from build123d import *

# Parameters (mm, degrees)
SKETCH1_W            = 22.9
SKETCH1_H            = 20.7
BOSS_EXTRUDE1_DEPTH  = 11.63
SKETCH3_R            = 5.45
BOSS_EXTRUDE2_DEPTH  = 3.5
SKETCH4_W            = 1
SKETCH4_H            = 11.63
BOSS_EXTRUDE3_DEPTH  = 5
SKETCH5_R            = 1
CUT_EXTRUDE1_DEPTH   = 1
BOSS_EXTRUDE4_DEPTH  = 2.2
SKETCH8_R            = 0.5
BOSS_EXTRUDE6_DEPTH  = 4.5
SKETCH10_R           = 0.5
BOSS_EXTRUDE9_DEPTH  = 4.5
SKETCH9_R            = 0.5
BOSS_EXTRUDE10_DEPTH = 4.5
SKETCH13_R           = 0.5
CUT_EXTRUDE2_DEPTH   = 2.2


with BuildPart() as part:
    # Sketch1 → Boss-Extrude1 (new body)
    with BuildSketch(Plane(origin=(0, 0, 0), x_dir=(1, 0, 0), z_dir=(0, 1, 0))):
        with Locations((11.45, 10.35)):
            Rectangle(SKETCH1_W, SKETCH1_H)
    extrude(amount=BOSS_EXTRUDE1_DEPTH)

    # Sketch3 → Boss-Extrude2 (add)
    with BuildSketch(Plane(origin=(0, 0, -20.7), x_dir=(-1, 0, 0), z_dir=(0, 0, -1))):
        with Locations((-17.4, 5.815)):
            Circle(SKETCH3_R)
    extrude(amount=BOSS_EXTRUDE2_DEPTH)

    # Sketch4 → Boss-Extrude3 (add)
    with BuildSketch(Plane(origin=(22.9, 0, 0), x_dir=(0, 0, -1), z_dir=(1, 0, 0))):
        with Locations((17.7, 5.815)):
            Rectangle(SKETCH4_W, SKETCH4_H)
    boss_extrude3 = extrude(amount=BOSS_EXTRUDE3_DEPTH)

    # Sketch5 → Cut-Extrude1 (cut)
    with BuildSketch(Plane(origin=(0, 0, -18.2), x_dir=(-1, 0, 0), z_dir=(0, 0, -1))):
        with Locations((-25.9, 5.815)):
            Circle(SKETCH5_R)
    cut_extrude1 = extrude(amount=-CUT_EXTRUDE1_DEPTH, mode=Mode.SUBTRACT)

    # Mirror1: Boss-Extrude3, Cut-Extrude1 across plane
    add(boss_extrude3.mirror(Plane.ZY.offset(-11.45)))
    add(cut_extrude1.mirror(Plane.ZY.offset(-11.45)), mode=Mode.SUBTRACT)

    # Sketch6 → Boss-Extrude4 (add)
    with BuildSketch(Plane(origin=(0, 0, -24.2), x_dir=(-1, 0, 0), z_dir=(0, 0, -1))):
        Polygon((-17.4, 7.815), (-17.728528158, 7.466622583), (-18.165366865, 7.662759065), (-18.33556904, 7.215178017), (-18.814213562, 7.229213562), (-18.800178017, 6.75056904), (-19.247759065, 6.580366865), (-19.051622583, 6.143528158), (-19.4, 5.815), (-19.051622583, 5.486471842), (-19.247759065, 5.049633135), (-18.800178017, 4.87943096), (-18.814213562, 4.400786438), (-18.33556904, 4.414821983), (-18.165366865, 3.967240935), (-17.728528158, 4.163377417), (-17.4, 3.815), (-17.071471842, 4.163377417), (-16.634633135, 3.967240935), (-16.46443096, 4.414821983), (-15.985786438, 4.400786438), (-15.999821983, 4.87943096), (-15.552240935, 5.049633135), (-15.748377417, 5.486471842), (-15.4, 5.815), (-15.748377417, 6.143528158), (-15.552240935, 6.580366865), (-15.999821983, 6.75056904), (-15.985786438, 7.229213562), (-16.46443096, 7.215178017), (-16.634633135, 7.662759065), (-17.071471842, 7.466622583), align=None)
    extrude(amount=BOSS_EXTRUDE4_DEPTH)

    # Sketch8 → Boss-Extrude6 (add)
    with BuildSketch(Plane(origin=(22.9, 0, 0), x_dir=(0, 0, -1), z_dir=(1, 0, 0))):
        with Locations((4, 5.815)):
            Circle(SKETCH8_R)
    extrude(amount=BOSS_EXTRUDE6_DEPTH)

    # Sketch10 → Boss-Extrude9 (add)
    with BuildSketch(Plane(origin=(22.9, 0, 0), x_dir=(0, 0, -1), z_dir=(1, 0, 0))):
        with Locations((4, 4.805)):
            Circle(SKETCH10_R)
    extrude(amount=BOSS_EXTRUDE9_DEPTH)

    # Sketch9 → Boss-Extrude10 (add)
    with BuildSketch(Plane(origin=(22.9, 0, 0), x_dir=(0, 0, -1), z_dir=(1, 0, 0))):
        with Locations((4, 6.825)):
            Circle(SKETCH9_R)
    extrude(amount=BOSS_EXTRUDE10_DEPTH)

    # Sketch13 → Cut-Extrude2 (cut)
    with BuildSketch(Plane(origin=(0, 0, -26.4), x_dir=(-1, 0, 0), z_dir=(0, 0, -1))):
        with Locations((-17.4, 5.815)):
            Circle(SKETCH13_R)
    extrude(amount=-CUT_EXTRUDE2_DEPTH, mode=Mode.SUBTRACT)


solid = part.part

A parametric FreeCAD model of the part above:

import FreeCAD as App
import Part
import Sketcher


def add_polygon(sketch, points):
    """Adds a closed chain of lines whose ends are joined by coincident constraints."""
    first, n = sketch.GeometryCount, len(points)
    for a, b in zip(points, points[1:] + points[:1]):
        sketch.addGeometry(Part.LineSegment(App.Vector(*a, 0), App.Vector(*b, 0)), False)
    for i in range(n):
        sketch.addConstraint(Sketcher.Constraint("Coincident", first + i, 2, first + (i + 1) % n, 1))

doc = App.newDocument("Part")
body = doc.addObject("PartDesign::Body", "Body")

sketch1 = body.newObject("Sketcher::SketchObject", "Sketch")
sketch1.AttachmentSupport = (doc.getObject("XZ_Plane"), [""])
sketch1.MapMode = "FlatFace"
add_polygon(sketch1, [(0, -21), (0, 0), (23, 0), (23, -21)])
sketch1.addConstraint([
    Sketcher.Constraint("Vertical", 0),
    Sketcher.Constraint("Horizontal", 1),
    Sketcher.Constraint("Vertical", 2),
    Sketcher.Constraint("Horizontal", 3),
    Sketcher.Constraint("Coincident", 0, 2, -1, 1),
    Sketcher.Constraint("DistanceX", 1, 1, 1, 2, 22.9),
    Sketcher.Constraint("DistanceY", 0, 1, 0, 2, 20.7),
])
pad1 = body.newObject("PartDesign::Pad", "Pad")
pad1.Profile = sketch1
pad1.Length = 11.63
pad1.Reversed = True

sketch2 = body.newObject("Sketcher::SketchObject", "Sketch001")
sketch2.AttachmentSupport = (doc.getObject("XY_Plane"), [""])
sketch2.MapMode = "FlatFace"
sketch2.AttachmentOffset = App.Placement(App.Vector(0, 0, -20.7), App.Rotation())
sketch2.addGeometry(Part.Circle(App.Vector(17, 6, 0), App.Vector(0, 0, 1), 5), False)
sketch2.addConstraint([
    Sketcher.Constraint("Diameter", 0, 10.9),
    Sketcher.Constraint("DistanceX", -1, 1, 0, 3, 17.4),
    Sketcher.Constraint("DistanceY", -1, 1, 0, 3, 5.815),
])
pad2 = body.newObject("PartDesign::Pad", "Pad001")
pad2.Profile = sketch2
pad2.Length = 3.5
pad2.Reversed = True

sketch3 = body.newObject("Sketcher::SketchObject", "Sketch002")
sketch3.AttachmentSupport = (doc.getObject("YZ_Plane"), [""])
sketch3.MapMode = "FlatFace"
sketch3.AttachmentOffset = App.Placement(App.Vector(0, 0, 22.9), App.Rotation())
add_polygon(sketch3, [(11.6, -17.2), (0, -17.2), (0, -18.2), (11.6, -18.2)])
sketch3.addConstraint([
    Sketcher.Constraint("Horizontal", 0),
    Sketcher.Constraint("Vertical", 1),
    Sketcher.Constraint("Horizontal", 2),
    Sketcher.Constraint("Vertical", 3),
    Sketcher.Constraint("PointOnObject", 0, 2, -2),
    Sketcher.Constraint("DistanceY", 1, 2, 1, 1, 1.0),
    Sketcher.Constraint("DistanceX", 0, 2, 0, 1, 11.63),
    Sketcher.Constraint("DistanceY", 0, 2, -1, 1, 17.2),
])
pad3 = body.newObject("PartDesign::Pad", "Pad002")
pad3.Profile = sketch3
pad3.Length = 5

sketch4 = body.newObject("Sketcher::SketchObject", "Sketch003")
sketch4.AttachmentSupport = (doc.getObject("XY_Plane"), [""])
sketch4.MapMode = "FlatFace"
sketch4.AttachmentOffset = App.Placement(App.Vector(0, 0, -18.2), App.Rotation())
sketch4.addGeometry(Part.Circle(App.Vector(25.9, 5.8, 0), App.Vector(0, 0, 1), 1), False)
sketch4.addConstraint([
    Sketcher.Constraint("Diameter", 0, 2.0),
    Sketcher.Constraint("DistanceX", -1, 1, 0, 3, 25.9),
    Sketcher.Constraint("DistanceY", -1, 1, 0, 3, 5.815),
])
pocket1 = body.newObject("PartDesign::Pocket", "Pocket")
pocket1.Profile = sketch4
pocket1.Length = 1
pocket1.Reversed = True
doc.recompute()

datumplane = body.newObject("PartDesign::Plane", "DatumPlane")
datumplane.AttachmentSupport = (doc.getObject("YZ_Plane"), [""])
datumplane.MapMode = "FlatFace"
datumplane.AttachmentOffset = App.Placement(App.Vector(0, 0, 11.45), App.Rotation())
mirrored = body.newObject("PartDesign::Mirrored", "Mirrored")
mirrored.Originals = [pad3, pocket1]
mirrored.MirrorPlane = (datumplane, [""])
body.Tip = mirrored

sketch5 = body.newObject("Sketcher::SketchObject", "Sketch004")
sketch5.AttachmentSupport = (doc.getObject("XY_Plane"), [""])
sketch5.MapMode = "FlatFace"
sketch5.AttachmentOffset = App.Placement(App.Vector(0, 0, -24.2), App.Rotation())
add_polygon(sketch5, [(17.4, 7.82), (17.73, 7.47), (18.17, 7.66), (18.34, 7.22), (18.81, 7.23), (18.8, 6.75), (19.25, 6.58), (19.05, 6.14), (19.4, 5.82), (19.05, 5.49), (19.25, 5.05), (18.8, 4.88), (18.81, 4.4), (18.34, 4.41), (18.17, 3.97), (17.73, 4.16), (17.4, 3.81), (17.07, 4.16), (16.63, 3.97), (16.46, 4.41), (15.99, 4.4), (16, 4.88), (15.55, 5.05), (15.75, 5.49), (15.4, 5.82), (15.75, 6.14), (15.55, 6.58), (16, 6.75), (15.99, 7.23), (16.46, 7.22), (16.63, 7.66), (17.07, 7.47)])
sketch5.addConstraint([
    Sketcher.Constraint("Perpendicular", 0, 8),
    Sketcher.Constraint("Perpendicular", 1, 9),
    Sketcher.Constraint("Perpendicular", 2, 10),
    Sketcher.Constraint("Perpendicular", 3, 11),
    Sketcher.Constraint("Perpendicular", 4, 12),
    Sketcher.Constraint("Perpendicular", 5, 13),
    Sketcher.Constraint("Perpendicular", 6, 14),
    Sketcher.Constraint("Perpendicular", 7, 15),
    Sketcher.Constraint("Perpendicular", 8, 16),
    Sketcher.Constraint("Perpendicular", 9, 17),
    Sketcher.Constraint("Perpendicular", 10, 18),
    Sketcher.Constraint("Perpendicular", 11, 19),
    Sketcher.Constraint("Perpendicular", 12, 20),
    Sketcher.Constraint("Perpendicular", 13, 21),
    Sketcher.Constraint("Perpendicular", 14, 22),
    Sketcher.Constraint("Perpendicular", 15, 23),
    Sketcher.Constraint("Perpendicular", 16, 24),
    Sketcher.Constraint("Perpendicular", 17, 25),
    Sketcher.Constraint("Perpendicular", 18, 26),
    Sketcher.Constraint("Perpendicular", 19, 27),
    Sketcher.Constraint("Perpendicular", 20, 28),
    Sketcher.Constraint("Perpendicular", 21, 29),
    Sketcher.Constraint("Perpendicular", 22, 30),
    Sketcher.Constraint("Perpendicular", 23, 31),
    Sketcher.Constraint("Horizontal", 14, 2, 16, 2),
    Sketcher.Constraint("Horizontal", 13, 2, 17, 2),
    Sketcher.Constraint("Horizontal", 12, 2, 18, 2),
    Sketcher.Constraint("Horizontal", 11, 2, 19, 2),
    Sketcher.Constraint("Horizontal", 10, 2, 20, 2),
    Sketcher.Constraint("Horizontal", 9, 2, 21, 2),
    Sketcher.Constraint("Horizontal", 8, 2, 22, 2),
    Sketcher.Constraint("Horizontal", 7, 2, 23, 2),
    Sketcher.Constraint("Horizontal", 6, 2, 24, 2),
    Sketcher.Constraint("Horizontal", 5, 2, 25, 2),
    Sketcher.Constraint("Horizontal", 4, 2, 26, 2),
    Sketcher.Constraint("Horizontal", 3, 2, 27, 2),
    Sketcher.Constraint("Horizontal", 2, 2, 28, 2),
    Sketcher.Constraint("Horizontal", 1, 2, 29, 2),
    Sketcher.Constraint("Horizontal", 0, 2, 30, 2),
    Sketcher.Constraint("Vertical", 6, 2, 8, 2),
    Sketcher.Constraint("Vertical", 5, 2, 9, 2),
    Sketcher.Constraint("Vertical", 4, 2, 10, 2),
    Sketcher.Constraint("Vertical", 3, 2, 11, 2),
    Sketcher.Constraint("Vertical", 2, 2, 12, 2),
    Sketcher.Constraint("Vertical", 1, 2, 13, 2),
    Sketcher.Constraint("Vertical", 0, 2, 14, 2),
    Sketcher.Constraint("Vertical", 22, 2, 24, 2),
    Sketcher.Constraint("Vertical", 21, 2, 25, 2),
    Sketcher.Constraint("Vertical", 20, 2, 26, 2),
    Sketcher.Constraint("Vertical", 19, 2, 27, 2),
    Sketcher.Constraint("Equal", 0, 1),
    Sketcher.Constraint("Equal", 1, 2),
    Sketcher.Constraint("Equal", 2, 3),
    Sketcher.Constraint("Equal", 3, 4),
    Sketcher.Constraint("Equal", 4, 5),
    Sketcher.Constraint("Equal", 5, 6),
    Sketcher.Constraint("Equal", 6, 7),
    Sketcher.Constraint("DistanceX", -1, 1, 7, 2, 19.4),
    Sketcher.Constraint("DistanceX", -1, 1, 15, 2, 17.4),
    Sketcher.Constraint("DistanceY", -1, 1, 7, 2, 5.815),
    Sketcher.Constraint("Distance", 0, 0.47885),
    Sketcher.Constraint("DistanceX", -1, 1, 0, 2, 17.728528),
    Sketcher.Constraint("DistanceY", -1, 1, 1, 2, 7.662759),
    Sketcher.Constraint("DistanceX", -1, 1, 2, 2, 18.335569),
])
pad4 = body.newObject("PartDesign::Pad", "Pad003")
pad4.Profile = sketch5
pad4.Length = 2.2
pad4.Reversed = True

sketch6 = body.newObject("Sketcher::SketchObject", "Sketch005")
sketch6.AttachmentSupport = (doc.getObject("YZ_Plane"), [""])
sketch6.MapMode = "FlatFace"
sketch6.AttachmentOffset = App.Placement(App.Vector(0, 0, 22.9), App.Rotation())
sketch6.addGeometry(Part.Circle(App.Vector(5.8, -4, 0), App.Vector(0, 0, 1), 0.5), False)
sketch6.addConstraint([
    Sketcher.Constraint("Diameter", 0, 1.0),
    Sketcher.Constraint("DistanceY", 0, 3, -1, 1, 4.0),
    Sketcher.Constraint("DistanceX", -1, 1, 0, 3, 5.815),
])
pad5 = body.newObject("PartDesign::Pad", "Pad004")
pad5.Profile = sketch6
pad5.Length = 4.5

sketch7 = body.newObject("Sketcher::SketchObject", "Sketch006")
sketch7.AttachmentSupport = (doc.getObject("YZ_Plane"), [""])
sketch7.MapMode = "FlatFace"
sketch7.AttachmentOffset = App.Placement(App.Vector(0, 0, 22.9), App.Rotation())
sketch7.addGeometry(Part.Circle(App.Vector(4.8, -4, 0), App.Vector(0, 0, 1), 0.5), False)
sketch7.addConstraint([
    Sketcher.Constraint("Diameter", 0, 1.0),
    Sketcher.Constraint("DistanceY", 0, 3, -1, 1, 4.0),
    Sketcher.Constraint("DistanceX", -1, 1, 0, 3, 4.805),
])
pad6 = body.newObject("PartDesign::Pad", "Pad005")
pad6.Profile = sketch7
pad6.Length = 4.5

sketch8 = body.newObject("Sketcher::SketchObject", "Sketch007")
sketch8.AttachmentSupport = (doc.getObject("YZ_Plane"), [""])
sketch8.MapMode = "FlatFace"
sketch8.AttachmentOffset = App.Placement(App.Vector(0, 0, 22.9), App.Rotation())
sketch8.addGeometry(Part.Circle(App.Vector(6.8, -4, 0), App.Vector(0, 0, 1), 0.5), False)
sketch8.addConstraint([
    Sketcher.Constraint("Diameter", 0, 1.0),
    Sketcher.Constraint("DistanceY", 0, 3, -1, 1, 4.0),
    Sketcher.Constraint("DistanceX", -1, 1, 0, 3, 6.825),
])
pad7 = body.newObject("PartDesign::Pad", "Pad006")
pad7.Profile = sketch8
pad7.Length = 4.5

sketch9 = body.newObject("Sketcher::SketchObject", "Sketch008")
sketch9.AttachmentSupport = (doc.getObject("XY_Plane"), [""])
sketch9.MapMode = "FlatFace"
sketch9.AttachmentOffset = App.Placement(App.Vector(0, 0, -26.4), App.Rotation())
sketch9.addGeometry(Part.Circle(App.Vector(17.4, 5.8, 0), App.Vector(0, 0, 1), 0.5), False)
sketch9.addConstraint([
    Sketcher.Constraint("Diameter", 0, 1.0),
    Sketcher.Constraint("DistanceX", -1, 1, 0, 3, 17.4),
    Sketcher.Constraint("DistanceY", -1, 1, 0, 3, 5.815),
])
pocket2 = body.newObject("PartDesign::Pocket", "Pocket001")
pocket2.Profile = sketch9
pocket2.Length = 2.2
pocket2.Reversed = True

doc.recompute()
